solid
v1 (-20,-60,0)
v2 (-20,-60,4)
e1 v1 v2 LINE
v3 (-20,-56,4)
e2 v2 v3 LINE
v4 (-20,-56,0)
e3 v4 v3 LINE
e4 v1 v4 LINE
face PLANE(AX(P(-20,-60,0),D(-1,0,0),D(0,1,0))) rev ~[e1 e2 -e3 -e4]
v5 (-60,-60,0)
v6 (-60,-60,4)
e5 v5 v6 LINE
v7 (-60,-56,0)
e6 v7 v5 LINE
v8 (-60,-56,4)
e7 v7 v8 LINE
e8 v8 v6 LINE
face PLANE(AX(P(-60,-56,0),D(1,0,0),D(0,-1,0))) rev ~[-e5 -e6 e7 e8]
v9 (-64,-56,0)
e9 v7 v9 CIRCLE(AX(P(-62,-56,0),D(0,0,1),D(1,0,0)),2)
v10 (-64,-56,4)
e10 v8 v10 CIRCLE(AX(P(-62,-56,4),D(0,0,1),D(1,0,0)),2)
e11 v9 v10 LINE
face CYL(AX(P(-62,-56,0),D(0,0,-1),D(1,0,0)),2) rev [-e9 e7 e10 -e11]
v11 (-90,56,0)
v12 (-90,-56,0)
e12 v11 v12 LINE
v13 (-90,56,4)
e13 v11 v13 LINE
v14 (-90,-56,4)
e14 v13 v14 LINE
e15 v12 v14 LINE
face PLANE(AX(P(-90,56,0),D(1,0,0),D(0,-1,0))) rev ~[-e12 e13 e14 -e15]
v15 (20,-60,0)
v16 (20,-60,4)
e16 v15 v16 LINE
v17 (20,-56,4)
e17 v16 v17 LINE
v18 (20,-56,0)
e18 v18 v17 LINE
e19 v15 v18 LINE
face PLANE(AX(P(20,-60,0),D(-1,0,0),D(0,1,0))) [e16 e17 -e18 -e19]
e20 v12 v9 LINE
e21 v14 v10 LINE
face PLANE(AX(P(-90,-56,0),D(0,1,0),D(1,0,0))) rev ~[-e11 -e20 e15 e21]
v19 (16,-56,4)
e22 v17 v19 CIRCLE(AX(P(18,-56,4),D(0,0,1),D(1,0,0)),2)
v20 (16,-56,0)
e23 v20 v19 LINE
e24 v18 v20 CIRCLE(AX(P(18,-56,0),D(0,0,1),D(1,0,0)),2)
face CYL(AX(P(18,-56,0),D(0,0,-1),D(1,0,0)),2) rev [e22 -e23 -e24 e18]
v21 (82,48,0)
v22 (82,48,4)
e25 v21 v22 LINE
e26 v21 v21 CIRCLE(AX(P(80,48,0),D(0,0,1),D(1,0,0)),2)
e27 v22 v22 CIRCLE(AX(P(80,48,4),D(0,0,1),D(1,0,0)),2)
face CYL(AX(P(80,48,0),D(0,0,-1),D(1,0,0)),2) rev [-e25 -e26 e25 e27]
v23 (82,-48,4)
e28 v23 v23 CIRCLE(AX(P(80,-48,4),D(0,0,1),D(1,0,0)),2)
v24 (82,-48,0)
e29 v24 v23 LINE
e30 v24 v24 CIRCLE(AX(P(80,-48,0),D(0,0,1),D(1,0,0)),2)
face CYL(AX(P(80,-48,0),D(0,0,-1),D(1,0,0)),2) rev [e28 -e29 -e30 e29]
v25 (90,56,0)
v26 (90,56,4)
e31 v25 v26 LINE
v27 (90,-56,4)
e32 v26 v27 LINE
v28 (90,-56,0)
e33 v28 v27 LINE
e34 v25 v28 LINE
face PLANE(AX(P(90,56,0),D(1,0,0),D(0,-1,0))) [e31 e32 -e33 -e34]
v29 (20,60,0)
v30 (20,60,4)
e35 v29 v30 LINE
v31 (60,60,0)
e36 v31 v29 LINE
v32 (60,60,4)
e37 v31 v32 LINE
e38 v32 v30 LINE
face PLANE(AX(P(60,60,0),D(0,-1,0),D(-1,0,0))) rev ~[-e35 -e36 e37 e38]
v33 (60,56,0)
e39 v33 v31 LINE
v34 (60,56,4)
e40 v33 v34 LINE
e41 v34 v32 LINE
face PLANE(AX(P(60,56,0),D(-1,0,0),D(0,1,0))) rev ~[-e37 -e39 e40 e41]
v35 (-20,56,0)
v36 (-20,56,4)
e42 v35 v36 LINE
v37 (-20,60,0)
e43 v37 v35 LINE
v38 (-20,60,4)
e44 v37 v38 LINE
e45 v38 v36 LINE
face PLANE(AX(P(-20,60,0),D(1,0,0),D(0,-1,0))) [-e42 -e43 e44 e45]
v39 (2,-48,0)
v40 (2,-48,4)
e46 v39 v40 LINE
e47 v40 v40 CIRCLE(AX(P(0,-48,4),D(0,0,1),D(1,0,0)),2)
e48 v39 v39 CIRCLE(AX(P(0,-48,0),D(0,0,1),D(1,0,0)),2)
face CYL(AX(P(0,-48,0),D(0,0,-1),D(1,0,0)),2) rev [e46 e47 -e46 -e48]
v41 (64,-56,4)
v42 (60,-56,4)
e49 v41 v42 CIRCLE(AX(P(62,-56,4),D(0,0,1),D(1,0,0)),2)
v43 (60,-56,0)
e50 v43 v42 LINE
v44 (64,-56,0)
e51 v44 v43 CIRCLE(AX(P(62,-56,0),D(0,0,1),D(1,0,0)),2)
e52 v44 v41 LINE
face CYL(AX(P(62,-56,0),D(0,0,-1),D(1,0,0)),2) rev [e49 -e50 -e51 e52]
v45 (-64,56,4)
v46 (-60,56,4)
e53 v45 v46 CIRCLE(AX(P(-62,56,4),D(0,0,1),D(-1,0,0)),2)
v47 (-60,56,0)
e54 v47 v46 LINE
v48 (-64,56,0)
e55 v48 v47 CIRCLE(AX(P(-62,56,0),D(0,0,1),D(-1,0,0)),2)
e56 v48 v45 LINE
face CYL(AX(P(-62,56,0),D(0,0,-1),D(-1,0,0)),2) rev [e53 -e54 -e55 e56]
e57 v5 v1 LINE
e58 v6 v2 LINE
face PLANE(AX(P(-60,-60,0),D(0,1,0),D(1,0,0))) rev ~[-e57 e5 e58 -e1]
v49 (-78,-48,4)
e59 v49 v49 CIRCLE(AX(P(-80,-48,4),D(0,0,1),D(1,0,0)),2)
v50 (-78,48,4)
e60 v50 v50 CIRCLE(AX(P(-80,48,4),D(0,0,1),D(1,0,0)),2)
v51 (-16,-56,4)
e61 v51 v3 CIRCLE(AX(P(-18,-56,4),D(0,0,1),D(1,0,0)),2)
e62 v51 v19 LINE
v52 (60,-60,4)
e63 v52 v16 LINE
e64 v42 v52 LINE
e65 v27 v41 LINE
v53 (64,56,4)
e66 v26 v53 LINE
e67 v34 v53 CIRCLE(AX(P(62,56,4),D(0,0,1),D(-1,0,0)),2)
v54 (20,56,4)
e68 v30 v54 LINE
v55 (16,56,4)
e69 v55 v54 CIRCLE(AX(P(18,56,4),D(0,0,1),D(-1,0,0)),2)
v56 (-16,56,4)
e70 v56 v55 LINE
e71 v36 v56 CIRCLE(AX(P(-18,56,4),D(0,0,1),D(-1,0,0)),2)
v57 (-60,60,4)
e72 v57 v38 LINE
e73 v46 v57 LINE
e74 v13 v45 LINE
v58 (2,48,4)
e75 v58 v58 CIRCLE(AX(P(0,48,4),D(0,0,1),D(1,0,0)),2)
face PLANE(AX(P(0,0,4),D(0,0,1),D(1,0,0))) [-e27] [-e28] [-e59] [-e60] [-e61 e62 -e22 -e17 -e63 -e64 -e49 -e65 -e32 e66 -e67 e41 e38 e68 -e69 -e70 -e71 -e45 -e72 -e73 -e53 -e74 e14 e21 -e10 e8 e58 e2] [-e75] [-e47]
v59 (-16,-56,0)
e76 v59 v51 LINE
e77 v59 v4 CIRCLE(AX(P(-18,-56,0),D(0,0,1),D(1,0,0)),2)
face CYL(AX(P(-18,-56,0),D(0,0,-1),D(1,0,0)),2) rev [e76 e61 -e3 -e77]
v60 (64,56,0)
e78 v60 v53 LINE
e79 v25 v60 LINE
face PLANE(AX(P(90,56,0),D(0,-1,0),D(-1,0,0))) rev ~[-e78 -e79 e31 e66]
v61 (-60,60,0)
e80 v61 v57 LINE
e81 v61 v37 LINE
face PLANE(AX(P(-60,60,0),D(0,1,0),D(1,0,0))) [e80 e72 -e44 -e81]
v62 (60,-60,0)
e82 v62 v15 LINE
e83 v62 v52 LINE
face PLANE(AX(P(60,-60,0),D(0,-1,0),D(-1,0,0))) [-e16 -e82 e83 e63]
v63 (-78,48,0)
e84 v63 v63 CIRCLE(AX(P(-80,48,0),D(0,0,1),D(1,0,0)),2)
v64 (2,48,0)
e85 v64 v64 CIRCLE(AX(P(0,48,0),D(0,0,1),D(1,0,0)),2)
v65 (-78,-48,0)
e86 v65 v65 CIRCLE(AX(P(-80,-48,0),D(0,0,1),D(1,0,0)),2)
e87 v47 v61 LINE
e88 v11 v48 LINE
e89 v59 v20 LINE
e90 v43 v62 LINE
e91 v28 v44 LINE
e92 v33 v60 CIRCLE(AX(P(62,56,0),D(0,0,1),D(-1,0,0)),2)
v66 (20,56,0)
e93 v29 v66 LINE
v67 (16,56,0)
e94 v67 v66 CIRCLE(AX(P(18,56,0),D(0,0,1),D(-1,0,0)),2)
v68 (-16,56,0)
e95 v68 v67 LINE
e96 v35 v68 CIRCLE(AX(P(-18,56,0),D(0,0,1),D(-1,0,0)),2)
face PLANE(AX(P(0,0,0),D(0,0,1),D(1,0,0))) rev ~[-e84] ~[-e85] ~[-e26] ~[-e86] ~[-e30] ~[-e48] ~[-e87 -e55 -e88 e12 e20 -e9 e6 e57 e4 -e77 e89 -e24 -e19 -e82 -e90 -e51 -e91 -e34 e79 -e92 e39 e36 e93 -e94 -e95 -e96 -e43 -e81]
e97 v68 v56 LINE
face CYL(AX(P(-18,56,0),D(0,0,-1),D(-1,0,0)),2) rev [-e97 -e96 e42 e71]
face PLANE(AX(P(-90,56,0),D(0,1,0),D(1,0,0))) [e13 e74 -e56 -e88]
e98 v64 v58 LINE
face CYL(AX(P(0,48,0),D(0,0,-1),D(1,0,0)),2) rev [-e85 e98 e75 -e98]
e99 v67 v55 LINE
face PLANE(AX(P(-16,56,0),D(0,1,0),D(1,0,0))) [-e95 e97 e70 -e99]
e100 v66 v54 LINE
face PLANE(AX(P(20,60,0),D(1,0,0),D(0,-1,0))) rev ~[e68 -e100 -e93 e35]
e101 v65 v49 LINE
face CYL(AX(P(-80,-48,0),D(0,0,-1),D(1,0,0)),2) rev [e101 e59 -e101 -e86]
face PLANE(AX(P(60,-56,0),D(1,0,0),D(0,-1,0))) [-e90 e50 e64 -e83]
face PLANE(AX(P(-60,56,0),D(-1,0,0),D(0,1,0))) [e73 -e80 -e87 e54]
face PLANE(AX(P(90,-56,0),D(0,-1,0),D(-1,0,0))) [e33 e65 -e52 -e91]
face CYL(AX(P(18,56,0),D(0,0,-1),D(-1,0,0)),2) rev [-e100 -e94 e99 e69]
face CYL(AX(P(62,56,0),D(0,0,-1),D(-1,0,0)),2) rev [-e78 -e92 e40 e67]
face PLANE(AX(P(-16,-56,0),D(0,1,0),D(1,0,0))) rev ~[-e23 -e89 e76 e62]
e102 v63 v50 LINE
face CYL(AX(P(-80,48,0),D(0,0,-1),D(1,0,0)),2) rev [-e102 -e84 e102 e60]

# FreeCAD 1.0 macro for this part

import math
import FreeCAD as App
import Part
import Sketcher
from FreeCAD import Vector
Q = App.Units.Quantity

doc = App.newDocument("Part")
body = doc.addObject("PartDesign::Body", "Body")

# Sketch on XY plane
sketch1 = body.newObject("Sketcher::SketchObject", "Sketch")
sketch1.AttachmentSupport = (doc.getObject("XY_Plane"), [""])
sketch1.MapMode = "FlatFace"
sketch1.addGeometry(Part.LineSegment(Vector(90, -56, 0), Vector(90, 56, 0)), False)
sketch1.addGeometry(Part.LineSegment(Vector(90, 56, 0), Vector(64, 56, 0)), False)
sketch1.addGeometry(Part.ArcOfCircle(Part.Circle(Vector(62, 56, 0), Vector(0, 0, 1), 2), math.radians(180), math.radians(360)), False)
sketch1.addGeometry(Part.LineSegment(Vector(60, 56, 0), Vector(60, 60, 0)), False)
sketch1.addGeometry(Part.LineSegment(Vector(60, 60, 0), Vector(20, 60, 0)), False)
sketch1.addGeometry(Part.LineSegment(Vector(20, 60, 0), Vector(20, 56, 0)), False)
sketch1.addGeometry(Part.ArcOfCircle(Part.Circle(Vector(18, 56, 0), Vector(0, 0, 1), 2), math.radians(180), math.radians(360)), False)
sketch1.addGeometry(Part.LineSegment(Vector(16, 56, 0), Vector(-16, 56, 0)), False)
sketch1.addGeometry(Part.ArcOfCircle(Part.Circle(Vector(-18, 56, 0), Vector(0, 0, 1), 2), math.radians(180), math.radians(360)), False)
sketch1.addGeometry(Part.LineSegment(Vector(-20, 56, 0), Vector(-20, 60, 0)), False)
sketch1.addGeometry(Part.LineSegment(Vector(-20, 60, 0), Vector(-60, 60, 0)), False)
sketch1.addGeometry(Part.LineSegment(Vector(-60, 60, 0), Vector(-60, 56, 0)), False)
sketch1.addGeometry(Part.ArcOfCircle(Part.Circle(Vector(-62, 56, 0), Vector(0, 0, 1), 2), math.radians(180), math.radians(360)), False)
sketch1.addGeometry(Part.LineSegment(Vector(-64, 56, 0), Vector(-90, 56, 0)), False)
sketch1.addGeometry(Part.LineSegment(Vector(-90, 56, 0), Vector(-90, -56, 0)), False)
sketch1.addGeometry(Part.LineSegment(Vector(-90, -56, 0), Vector(-64, -56, 0)), False)
sketch1.addGeometry(Part.ArcOfCircle(Part.Circle(Vector(-62, -56, 0), Vector(0, 0, 1), 2), math.radians(0), math.radians(180)), False)
sketch1.addGeometry(Part.LineSegment(Vector(-60, -56, 0), Vector(-60, -60, 0)), False)
sketch1.addGeometry(Part.LineSegment(Vector(-60, -60, 0), Vector(-20, -60, 0)), False)
sketch1.addGeometry(Part.LineSegment(Vector(-20, -60, 0), Vector(-20, -56, 0)), False)
sketch1.addGeometry(Part.ArcOfCircle(Part.Circle(Vector(-18, -56, 0), Vector(0, 0, 1), 2), math.radians(0), math.radians(180)), False)
sketch1.addGeometry(Part.LineSegment(Vector(-16, -56, 0), Vector(16, -56, 0)), False)
sketch1.addGeometry(Part.ArcOfCircle(Part.Circle(Vector(18, -56, 0), Vector(0, 0, 1), 2), math.radians(0), math.radians(180)), False)
sketch1.addGeometry(Part.LineSegment(Vector(20, -56, 0), Vector(20, -60, 0)), False)
sketch1.addGeometry(Part.LineSegment(Vector(20, -60, 0), Vector(60, -60, 0)), False)
sketch1.addGeometry(Part.LineSegment(Vector(60, -60, 0), Vector(60, -56, 0)), False)
sketch1.addGeometry(Part.ArcOfCircle(Part.Circle(Vector(62, -56, 0), Vector(0, 0, 1), 2), math.radians(0), math.radians(180)), False)
sketch1.addGeometry(Part.LineSegment(Vector(64, -56, 0), Vector(90, -56, 0)), False)
sketch1.addGeometry(Part.Circle(Vector(-80, -48, 0), Vector(0, 0, 1), 2), False)
sketch1.addGeometry(Part.Circle(Vector(0, -48, 0), Vector(0, 0, 1), 2), False)
sketch1.addGeometry(Part.Circle(Vector(80, -48, 0), Vector(0, 0, 1), 2), False)
sketch1.addGeometry(Part.Circle(Vector(-80, 48, 0), Vector(0, 0, 1), 2), False)
sketch1.addGeometry(Part.Circle(Vector(0, 48, 0), Vector(0, 0, 1), 2), False)
sketch1.addGeometry(Part.Circle(Vector(80, 48, 0), Vector(0, 0, 1), 2), False)
sketch1.addConstraint(Sketcher.Constraint("Coincident", 0, 2, 1, 1))
sketch1.addConstraint(Sketcher.Constraint("Coincident", 1, 2, 2, 2))
sketch1.addConstraint(Sketcher.Constraint("Tangent", 2, 1, 3, 1))
sketch1.addConstraint(Sketcher.Constraint("Coincident", 3, 2, 4, 1))
sketch1.addConstraint(Sketcher.Constraint("Coincident", 4, 2, 5, 1))
sketch1.addConstraint(Sketcher.Constraint("Tangent", 5, 2, 6, 2))
sketch1.addConstraint(Sketcher.Constraint("Coincident", 6, 1, 7, 1))
sketch1.addConstraint(Sketcher.Constraint("Coincident", 7, 2, 8, 2))
sketch1.addConstraint(Sketcher.Constraint("Tangent", 8, 1, 9, 1))
sketch1.addConstraint(Sketcher.Constraint("Coincident", 9, 2, 10, 1))
sketch1.addConstraint(Sketcher.Constraint("Coincident", 10, 2, 11, 1))
sketch1.addConstraint(Sketcher.Constraint("Tangent", 11, 2, 12, 2))
sketch1.addConstraint(Sketcher.Constraint("Coincident", 12, 1, 13, 1))
sketch1.addConstraint(Sketcher.Constraint("Coincident", 13, 2, 14, 1))
sketch1.addConstraint(Sketcher.Constraint("Coincident", 14, 2, 15, 1))
sketch1.addConstraint(Sketcher.Constraint("Coincident", 15, 2, 16, 2))
sketch1.addConstraint(Sketcher.Constraint("Tangent", 16, 1, 17, 1))
sketch1.addConstraint(Sketcher.Constraint("Coincident", 17, 2, 18, 1))
sketch1.addConstraint(Sketcher.Constraint("Coincident", 18, 2, 19, 1))
sketch1.addConstraint(Sketcher.Constraint("Tangent", 19, 2, 20, 2))
sketch1.addConstraint(Sketcher.Constraint("Coincident", 20, 1, 21, 1))
sketch1.addConstraint(Sketcher.Constraint("Coincident", 21, 2, 22, 2))
sketch1.addConstraint(Sketcher.Constraint("Tangent", 22, 1, 23, 1))
sketch1.addConstraint(Sketcher.Constraint("Coincident", 23, 2, 24, 1))
sketch1.addConstraint(Sketcher.Constraint("Coincident", 24, 2, 25, 1))
sketch1.addConstraint(Sketcher.Constraint("Tangent", 25, 2, 26, 2))
sketch1.addConstraint(Sketcher.Constraint("Coincident", 26, 1, 27, 1))
sketch1.addConstraint(Sketcher.Constraint("Coincident", 27, 2, 0, 1))
sketch1.addConstraint(Sketcher.Constraint("Vertical", 0))
sketch1.addConstraint(Sketcher.Constraint("Horizontal", 1))
sketch1.addConstraint(Sketcher.Constraint("Vertical", 3))
sketch1.addConstraint(Sketcher.Constraint("Horizontal", 4))
sketch1.addConstraint(Sketcher.Constraint("Vertical", 5))
sketch1.addConstraint(Sketcher.Constraint("Horizontal", 7))
sketch1.addConstraint(Sketcher.Constraint("Vertical", 9))
sketch1.addConstraint(Sketcher.Constraint("Horizontal", 10))
sketch1.addConstraint(Sketcher.Constraint("Vertical", 11))
sketch1.addConstraint(Sketcher.Constraint("Horizontal", 13))
sketch1.addConstraint(Sketcher.Constraint("Vertical", 14))
sketch1.addConstraint(Sketcher.Constraint("Horizontal", 15))
sketch1.addConstraint(Sketcher.Constraint("Vertical", 17))
sketch1.addConstraint(Sketcher.Constraint("Horizontal", 18))
sketch1.addConstraint(Sketcher.Constraint("Vertical", 19))
sketch1.addConstraint(Sketcher.Constraint("Horizontal", 21))
sketch1.addConstraint(Sketcher.Constraint("Vertical", 23))
sketch1.addConstraint(Sketcher.Constraint("Horizontal", 24))
sketch1.addConstraint(Sketcher.Constraint("Vertical", 25))
sketch1.addConstraint(Sketcher.Constraint("Horizontal", 27))
sketch1.addConstraint(Sketcher.Constraint("Equal", 2, 6))
sketch1.addConstraint(Sketcher.Constraint("Equal", 6, 8))
sketch1.addConstraint(Sketcher.Constraint("Equal", 8, 12))
sketch1.addConstraint(Sketcher.Constraint("Equal", 12, 16))
sketch1.addConstraint(Sketcher.Constraint("Equal", 16, 20))
sketch1.addConstraint(Sketcher.Constraint("Equal", 20, 22))
sketch1.addConstraint(Sketcher.Constraint("Equal", 22, 26))
sketch1.addConstraint(Sketcher.Constraint("Equal", 26, 28))
sketch1.addConstraint(Sketcher.Constraint("Equal", 28, 29))
sketch1.addConstraint(Sketcher.Constraint("Equal", 29, 30))
sketch1.addConstraint(Sketcher.Constraint("Equal", 30, 31))
sketch1.addConstraint(Sketcher.Constraint("Equal", 31, 32))
sketch1.addConstraint(Sketcher.Constraint("Equal", 32, 33))
sketch1.addConstraint(Sketcher.Constraint("Symmetric", 2, 3, 16, 3, -1, 1))
sketch1.addConstraint(Sketcher.Constraint("Symmetric", 6, 3, 20, 3, -1, 1))
sketch1.addConstraint(Sketcher.Constraint("Symmetric", 8, 3, 22, 3, -1, 1))
sketch1.addConstraint(Sketcher.Constraint("Symmetric", 12, 3, 26, 3, -1, 1))
sketch1.addConstraint(Sketcher.Constraint("Symmetric", 30, 3, 31, 3, -1, 1))
sketch1.addConstraint(Sketcher.Constraint("Symmetric", 29, 3, 32, 3, -1, 1))
sketch1.addConstraint(Sketcher.Constraint("Symmetric", 28, 3, 33, 3, -1, 1))
sketch1.addConstraint(Sketcher.Constraint("Symmetric", 0, 2, 14, 2, -1, 1))
sketch1.addConstraint(Sketcher.Constraint("Symmetric", 6, 3, 8, 3, -2))
sketch1.addConstraint(Sketcher.Constraint("Symmetric", 2, 3, 12, 3, -2))
sketch1.addConstraint(Sketcher.Constraint("Symmetric", 28, 3, 30, 3, -2))
sketch1.addConstraint(Sketcher.Constraint("PointOnObject", 29, 3, -2))
sketch1.addConstraint(Sketcher.Constraint("Horizontal", 2, 3, 6, 3))
sketch1.addConstraint(Sketcher.Constraint("Horizontal", 28, 3, 29, 3))
sketch1.addConstraint(Sketcher.Constraint("Horizontal", 12, 3, 0, 2))
sketch1.addConstraint(Sketcher.Constraint("Horizontal", 5, 2, 6, 1))
sketch1.addConstraint(Sketcher.Constraint("Horizontal", 4, 2, 9, 2))
sketch1.addConstraint(Sketcher.Constraint("Horizontal", 11, 2, 12, 1))
sketch1.addConstraint(Sketcher.Constraint("Horizontal", 19, 2, 20, 1))
sketch1.addConstraint(Sketcher.Constraint("Horizontal", 18, 2, 23, 2))
sketch1.addConstraint(Sketcher.Constraint("Horizontal", 25, 2, 26, 1))
sketch1.addConstraint(Sketcher.Constraint("Equal", 11, 17))
sketch1.addConstraint(Sketcher.Constraint("Diameter", 28, Q("4 mm")))
sketch1.addConstraint(Sketcher.Constraint("DistanceX", 4, 2, 4, 1, Q("40 mm")))
sketch1.addConstraint(Sketcher.Constraint("DistanceY", 3, 1, 3, 2, Q("4 mm")))
sketch1.addConstraint(Sketcher.Constraint("DistanceX", -1, 1, 4, 2, Q("20 mm")))
sketch1.addConstraint(Sketcher.Constraint("DistanceY", 16, 3, 28, 3, Q("8 mm")))
sketch1.addConstraint(Sketcher.Constraint("DistanceX", 2, 1, 33, 3, Q("20 mm")))
sketch1.addConstraint(Sketcher.Constraint("DistanceX", 2, 1, 0, 2, Q("30 mm")))
sketch1.addConstraint(Sketcher.Constraint("DistanceY", 0, 1, 0, 2, Q("112 mm")))
pad1 = body.newObject("PartDesign::Pad", "Pad")
pad1.Profile = sketch1
pad1.Length = 4

doc.recompute()
